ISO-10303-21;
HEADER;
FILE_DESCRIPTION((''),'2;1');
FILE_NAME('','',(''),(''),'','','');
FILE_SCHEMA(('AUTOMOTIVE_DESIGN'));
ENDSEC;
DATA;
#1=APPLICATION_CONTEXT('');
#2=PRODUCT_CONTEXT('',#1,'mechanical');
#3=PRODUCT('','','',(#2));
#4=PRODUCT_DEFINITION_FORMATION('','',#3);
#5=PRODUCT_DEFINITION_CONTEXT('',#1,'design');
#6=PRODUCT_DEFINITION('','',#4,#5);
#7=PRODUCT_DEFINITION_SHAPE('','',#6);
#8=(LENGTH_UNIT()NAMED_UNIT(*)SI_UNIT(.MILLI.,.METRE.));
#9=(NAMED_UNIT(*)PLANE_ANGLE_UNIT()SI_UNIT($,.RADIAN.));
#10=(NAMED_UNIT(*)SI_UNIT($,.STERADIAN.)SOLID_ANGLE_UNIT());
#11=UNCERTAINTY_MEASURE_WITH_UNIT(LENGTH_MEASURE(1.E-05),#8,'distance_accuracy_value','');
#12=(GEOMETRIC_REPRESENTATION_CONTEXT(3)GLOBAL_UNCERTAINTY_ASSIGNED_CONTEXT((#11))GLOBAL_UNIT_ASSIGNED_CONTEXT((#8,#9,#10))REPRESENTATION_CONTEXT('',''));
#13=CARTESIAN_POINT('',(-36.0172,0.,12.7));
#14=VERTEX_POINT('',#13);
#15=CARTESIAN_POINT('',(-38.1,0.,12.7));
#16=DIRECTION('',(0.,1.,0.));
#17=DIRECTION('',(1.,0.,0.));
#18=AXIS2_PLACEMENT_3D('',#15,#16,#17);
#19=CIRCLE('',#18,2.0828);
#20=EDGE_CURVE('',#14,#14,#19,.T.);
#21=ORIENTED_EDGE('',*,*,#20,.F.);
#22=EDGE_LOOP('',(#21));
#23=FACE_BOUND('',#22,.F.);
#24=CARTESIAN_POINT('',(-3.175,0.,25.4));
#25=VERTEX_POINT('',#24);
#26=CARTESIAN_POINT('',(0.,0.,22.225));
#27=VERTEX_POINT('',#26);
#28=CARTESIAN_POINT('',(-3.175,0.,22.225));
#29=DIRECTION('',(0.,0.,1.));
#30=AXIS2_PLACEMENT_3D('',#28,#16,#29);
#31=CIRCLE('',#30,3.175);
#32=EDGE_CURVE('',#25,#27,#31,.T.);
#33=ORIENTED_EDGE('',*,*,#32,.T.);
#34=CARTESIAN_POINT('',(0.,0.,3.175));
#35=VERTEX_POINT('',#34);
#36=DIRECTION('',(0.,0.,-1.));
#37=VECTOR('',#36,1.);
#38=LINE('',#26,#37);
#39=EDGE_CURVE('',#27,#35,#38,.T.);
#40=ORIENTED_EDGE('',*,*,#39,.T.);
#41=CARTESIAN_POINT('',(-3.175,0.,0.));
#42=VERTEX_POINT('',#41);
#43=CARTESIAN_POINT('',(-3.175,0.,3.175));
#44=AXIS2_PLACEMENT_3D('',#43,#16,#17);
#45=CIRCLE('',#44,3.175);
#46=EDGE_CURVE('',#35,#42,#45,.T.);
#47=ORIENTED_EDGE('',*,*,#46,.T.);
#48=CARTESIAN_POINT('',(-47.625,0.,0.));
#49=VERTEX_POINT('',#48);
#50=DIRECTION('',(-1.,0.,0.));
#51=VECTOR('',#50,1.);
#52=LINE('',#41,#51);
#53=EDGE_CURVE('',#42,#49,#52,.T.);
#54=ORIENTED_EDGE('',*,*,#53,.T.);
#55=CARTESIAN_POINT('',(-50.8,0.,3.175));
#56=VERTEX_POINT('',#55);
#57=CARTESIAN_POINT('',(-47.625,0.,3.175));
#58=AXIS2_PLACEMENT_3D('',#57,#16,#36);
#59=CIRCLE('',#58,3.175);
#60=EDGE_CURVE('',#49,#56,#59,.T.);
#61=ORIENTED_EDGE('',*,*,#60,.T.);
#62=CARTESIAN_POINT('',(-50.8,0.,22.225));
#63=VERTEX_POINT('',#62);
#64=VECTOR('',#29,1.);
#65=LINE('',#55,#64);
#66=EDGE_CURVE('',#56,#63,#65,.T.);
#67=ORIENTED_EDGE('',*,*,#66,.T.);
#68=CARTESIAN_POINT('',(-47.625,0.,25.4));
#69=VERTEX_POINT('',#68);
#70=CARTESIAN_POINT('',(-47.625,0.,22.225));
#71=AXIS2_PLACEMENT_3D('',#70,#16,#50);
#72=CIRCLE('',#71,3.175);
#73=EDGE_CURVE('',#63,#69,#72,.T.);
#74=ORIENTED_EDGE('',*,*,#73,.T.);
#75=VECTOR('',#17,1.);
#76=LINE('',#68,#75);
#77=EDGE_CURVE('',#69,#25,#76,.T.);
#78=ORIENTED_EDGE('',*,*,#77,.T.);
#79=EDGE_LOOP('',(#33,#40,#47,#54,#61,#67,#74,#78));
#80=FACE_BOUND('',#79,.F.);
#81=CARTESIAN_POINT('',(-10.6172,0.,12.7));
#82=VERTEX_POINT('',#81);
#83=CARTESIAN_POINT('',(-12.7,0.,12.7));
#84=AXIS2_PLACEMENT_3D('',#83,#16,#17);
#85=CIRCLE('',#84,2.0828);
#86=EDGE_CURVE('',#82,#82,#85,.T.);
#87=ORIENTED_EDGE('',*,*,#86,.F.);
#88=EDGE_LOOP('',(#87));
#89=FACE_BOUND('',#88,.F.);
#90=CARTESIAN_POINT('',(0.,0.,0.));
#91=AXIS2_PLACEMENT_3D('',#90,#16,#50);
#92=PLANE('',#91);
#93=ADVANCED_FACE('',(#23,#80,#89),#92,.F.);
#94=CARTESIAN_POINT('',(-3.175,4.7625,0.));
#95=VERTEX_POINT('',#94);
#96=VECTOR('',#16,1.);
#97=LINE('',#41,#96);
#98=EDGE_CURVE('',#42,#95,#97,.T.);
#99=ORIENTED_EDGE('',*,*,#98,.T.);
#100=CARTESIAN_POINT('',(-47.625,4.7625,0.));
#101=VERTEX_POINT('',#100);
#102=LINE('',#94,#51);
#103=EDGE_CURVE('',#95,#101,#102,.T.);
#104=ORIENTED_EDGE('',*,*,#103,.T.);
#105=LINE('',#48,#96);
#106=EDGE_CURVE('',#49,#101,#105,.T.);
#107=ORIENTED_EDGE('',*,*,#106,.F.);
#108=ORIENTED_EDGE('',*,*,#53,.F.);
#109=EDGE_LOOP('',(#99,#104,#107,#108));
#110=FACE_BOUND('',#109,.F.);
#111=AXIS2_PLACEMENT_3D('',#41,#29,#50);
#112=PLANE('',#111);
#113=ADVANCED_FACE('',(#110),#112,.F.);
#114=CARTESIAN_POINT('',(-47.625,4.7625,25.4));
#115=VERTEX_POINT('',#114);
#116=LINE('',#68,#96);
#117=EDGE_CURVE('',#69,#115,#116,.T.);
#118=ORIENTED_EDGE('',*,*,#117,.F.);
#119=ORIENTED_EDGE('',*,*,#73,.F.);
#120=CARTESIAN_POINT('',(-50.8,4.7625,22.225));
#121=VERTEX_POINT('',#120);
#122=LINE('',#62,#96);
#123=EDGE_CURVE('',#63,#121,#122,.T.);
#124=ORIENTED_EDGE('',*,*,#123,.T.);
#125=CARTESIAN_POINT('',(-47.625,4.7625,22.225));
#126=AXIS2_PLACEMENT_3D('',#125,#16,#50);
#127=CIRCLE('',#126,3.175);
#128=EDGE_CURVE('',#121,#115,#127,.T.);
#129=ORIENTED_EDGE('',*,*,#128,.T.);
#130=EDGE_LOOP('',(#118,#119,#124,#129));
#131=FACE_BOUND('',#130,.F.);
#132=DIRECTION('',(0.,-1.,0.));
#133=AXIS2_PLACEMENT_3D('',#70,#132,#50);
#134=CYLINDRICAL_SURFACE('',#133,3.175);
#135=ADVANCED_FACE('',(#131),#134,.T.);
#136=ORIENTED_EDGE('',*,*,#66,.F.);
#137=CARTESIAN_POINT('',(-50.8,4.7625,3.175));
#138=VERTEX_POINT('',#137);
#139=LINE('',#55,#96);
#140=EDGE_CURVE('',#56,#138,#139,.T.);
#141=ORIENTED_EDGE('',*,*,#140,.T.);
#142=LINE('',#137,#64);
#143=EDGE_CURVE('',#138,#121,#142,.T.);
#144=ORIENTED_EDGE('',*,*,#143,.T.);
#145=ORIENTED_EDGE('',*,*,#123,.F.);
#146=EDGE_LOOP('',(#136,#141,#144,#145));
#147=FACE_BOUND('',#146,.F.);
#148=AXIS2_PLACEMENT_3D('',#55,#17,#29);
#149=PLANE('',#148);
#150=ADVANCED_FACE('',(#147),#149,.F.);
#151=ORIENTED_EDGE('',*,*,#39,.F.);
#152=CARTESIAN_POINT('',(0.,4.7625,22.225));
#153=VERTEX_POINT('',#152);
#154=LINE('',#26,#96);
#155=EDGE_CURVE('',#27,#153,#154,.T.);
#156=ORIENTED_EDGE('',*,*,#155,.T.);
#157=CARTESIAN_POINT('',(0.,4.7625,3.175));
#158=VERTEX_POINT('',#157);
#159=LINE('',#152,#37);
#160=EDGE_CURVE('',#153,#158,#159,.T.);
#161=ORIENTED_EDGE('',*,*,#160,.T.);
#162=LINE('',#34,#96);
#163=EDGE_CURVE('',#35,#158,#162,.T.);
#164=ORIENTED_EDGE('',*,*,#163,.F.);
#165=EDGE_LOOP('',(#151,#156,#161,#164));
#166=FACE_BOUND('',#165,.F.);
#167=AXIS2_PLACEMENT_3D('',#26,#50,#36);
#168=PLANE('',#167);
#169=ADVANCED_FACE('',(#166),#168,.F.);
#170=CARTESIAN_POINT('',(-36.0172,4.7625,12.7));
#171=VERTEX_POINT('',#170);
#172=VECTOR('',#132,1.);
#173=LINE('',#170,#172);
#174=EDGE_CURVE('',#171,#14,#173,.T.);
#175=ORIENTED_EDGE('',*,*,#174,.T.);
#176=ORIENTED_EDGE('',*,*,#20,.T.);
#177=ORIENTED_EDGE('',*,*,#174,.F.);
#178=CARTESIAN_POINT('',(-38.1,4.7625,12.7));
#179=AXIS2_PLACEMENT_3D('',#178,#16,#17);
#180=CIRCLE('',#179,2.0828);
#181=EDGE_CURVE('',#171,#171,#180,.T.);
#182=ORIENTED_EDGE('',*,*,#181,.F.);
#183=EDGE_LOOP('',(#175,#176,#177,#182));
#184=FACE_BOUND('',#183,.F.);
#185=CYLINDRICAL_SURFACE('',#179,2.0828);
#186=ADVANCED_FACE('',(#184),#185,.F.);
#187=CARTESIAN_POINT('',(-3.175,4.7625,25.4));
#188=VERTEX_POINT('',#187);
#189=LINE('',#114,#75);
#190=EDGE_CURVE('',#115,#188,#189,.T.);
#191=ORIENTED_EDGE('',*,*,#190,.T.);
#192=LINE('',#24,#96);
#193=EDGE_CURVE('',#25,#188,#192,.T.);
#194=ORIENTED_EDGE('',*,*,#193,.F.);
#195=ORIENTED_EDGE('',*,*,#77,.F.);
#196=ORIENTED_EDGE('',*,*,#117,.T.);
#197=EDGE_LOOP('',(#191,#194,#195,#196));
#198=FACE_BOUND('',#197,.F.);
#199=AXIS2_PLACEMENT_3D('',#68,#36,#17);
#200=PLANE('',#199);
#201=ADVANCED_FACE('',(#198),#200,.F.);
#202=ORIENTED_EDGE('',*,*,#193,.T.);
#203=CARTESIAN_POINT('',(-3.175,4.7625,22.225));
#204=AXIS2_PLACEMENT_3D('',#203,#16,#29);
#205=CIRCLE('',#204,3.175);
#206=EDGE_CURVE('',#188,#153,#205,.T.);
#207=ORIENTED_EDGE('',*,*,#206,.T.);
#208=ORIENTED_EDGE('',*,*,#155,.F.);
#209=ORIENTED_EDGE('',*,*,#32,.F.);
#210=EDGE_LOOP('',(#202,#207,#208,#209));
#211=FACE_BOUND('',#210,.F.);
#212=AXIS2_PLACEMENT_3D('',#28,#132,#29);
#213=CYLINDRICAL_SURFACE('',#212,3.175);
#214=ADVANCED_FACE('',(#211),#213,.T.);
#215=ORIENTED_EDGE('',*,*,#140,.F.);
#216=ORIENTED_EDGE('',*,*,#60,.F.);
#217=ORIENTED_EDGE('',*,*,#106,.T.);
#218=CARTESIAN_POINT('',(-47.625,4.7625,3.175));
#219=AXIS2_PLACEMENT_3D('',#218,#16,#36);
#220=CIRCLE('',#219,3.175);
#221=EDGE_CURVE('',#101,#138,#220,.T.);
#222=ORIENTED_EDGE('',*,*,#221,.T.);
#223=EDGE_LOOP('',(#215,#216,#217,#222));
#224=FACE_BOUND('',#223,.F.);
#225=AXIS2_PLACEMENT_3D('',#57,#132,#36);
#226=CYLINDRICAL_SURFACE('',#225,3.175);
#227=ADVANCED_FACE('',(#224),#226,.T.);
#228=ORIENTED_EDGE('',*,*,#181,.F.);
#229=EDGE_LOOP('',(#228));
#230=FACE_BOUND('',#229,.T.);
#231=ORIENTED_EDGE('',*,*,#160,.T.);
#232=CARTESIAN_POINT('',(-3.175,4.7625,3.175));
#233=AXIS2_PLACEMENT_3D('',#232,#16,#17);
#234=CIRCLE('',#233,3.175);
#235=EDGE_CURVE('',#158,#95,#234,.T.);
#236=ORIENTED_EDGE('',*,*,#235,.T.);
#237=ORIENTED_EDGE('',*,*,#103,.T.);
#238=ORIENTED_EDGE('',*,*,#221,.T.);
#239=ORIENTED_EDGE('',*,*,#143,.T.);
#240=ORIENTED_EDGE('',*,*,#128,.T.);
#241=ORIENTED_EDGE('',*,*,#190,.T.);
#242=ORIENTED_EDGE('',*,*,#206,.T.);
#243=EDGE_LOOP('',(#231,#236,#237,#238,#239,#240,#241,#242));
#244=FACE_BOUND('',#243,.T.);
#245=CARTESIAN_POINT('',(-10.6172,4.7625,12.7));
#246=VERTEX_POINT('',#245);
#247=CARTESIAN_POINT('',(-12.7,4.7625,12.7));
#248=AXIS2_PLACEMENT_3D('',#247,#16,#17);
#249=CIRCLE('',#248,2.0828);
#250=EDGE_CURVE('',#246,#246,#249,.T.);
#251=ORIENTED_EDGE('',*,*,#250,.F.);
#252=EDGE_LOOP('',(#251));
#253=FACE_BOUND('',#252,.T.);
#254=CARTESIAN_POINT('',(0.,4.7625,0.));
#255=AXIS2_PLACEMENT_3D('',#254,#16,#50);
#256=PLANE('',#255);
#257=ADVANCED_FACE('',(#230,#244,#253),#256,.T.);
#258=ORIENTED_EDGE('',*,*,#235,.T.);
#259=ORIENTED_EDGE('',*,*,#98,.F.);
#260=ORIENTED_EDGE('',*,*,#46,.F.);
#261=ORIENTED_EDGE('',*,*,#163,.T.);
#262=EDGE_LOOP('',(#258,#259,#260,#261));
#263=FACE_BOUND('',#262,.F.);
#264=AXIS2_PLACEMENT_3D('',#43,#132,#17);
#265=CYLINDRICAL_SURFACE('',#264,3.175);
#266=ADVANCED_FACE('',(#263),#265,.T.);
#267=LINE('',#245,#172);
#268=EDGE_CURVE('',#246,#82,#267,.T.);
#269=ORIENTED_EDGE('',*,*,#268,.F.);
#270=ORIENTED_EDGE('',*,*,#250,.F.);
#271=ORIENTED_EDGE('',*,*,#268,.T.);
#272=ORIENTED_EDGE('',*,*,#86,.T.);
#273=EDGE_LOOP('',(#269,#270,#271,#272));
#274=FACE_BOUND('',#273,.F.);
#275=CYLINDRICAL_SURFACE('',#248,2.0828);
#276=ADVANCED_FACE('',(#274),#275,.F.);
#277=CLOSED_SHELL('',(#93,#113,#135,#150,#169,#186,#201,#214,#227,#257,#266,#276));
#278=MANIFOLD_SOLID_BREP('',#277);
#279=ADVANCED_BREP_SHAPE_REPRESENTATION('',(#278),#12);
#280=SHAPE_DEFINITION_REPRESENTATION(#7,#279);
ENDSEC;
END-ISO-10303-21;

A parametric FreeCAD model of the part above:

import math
import FreeCAD as App
import Part
import Sketcher
from FreeCAD import Vector
Q = App.Units.Quantity

doc = App.newDocument("Part")
params = doc.addObject("Spreadsheet::Sheet", "Params")
for row, (alias, value) in enumerate([
    ("sketch1_radius", "0.125 in"),
    ("pad1_length", "0.1875 in"),
    ("sketch2_diameter", "0.164 in"),
    ("pocket1_length", "0.1875 in"),
], start=1):
    params.set(f"A{row}", alias)
    params.set(f"B{row}", "=" + value)
    params.setAlias(f"B{row}", alias)

body = doc.addObject("PartDesign::Body", "Body")

# Sketch on XZ plane
sketch1 = body.newObject("Sketcher::SketchObject", "Sketch")
sketch1.AttachmentSupport = (doc.getObject("XZ_Plane"), [""])
sketch1.MapMode = "FlatFace"
sketch1.addGeometry([
    Part.ArcOfCircle(Part.Circle(Vector(-3.2, 3.2, 0), Vector(0, 0, 1), 3.2), math.radians(-90), math.radians(0)),  # 0
    Part.LineSegment(Vector(-3.2, 0, 0), Vector(-47.6, 0, 0)),  # 1
    Part.ArcOfCircle(Part.Circle(Vector(-47.6, 3.2, 0), Vector(0, 0, 1), 3.2), math.radians(180), math.radians(270)),  # 2
    Part.LineSegment(Vector(-50.8, 3.2, 0), Vector(-50.8, 22.2, 0)),  # 3
    Part.ArcOfCircle(Part.Circle(Vector(-47.6, 22.2, 0), Vector(0, 0, 1), 3.2), math.radians(90), math.radians(180)),  # 4
    Part.LineSegment(Vector(-47.6, 25.4, 0), Vector(-3.2, 25.4, 0)),  # 5
    Part.ArcOfCircle(Part.Circle(Vector(-3.2, 22.2, 0), Vector(0, 0, 1), 3.2), math.radians(0), math.radians(90)),  # 6
    Part.LineSegment(Vector(0, 22.2, 0), Vector(0, 3.2, 0)),  # 7
], False)
sketch1.addConstraint([
    Sketcher.Constraint("Tangent", 0, 1, 1, 1),
    Sketcher.Constraint("Tangent", 1, 2, 2, 2),
    Sketcher.Constraint("Tangent", 2, 1, 3, 1),
    Sketcher.Constraint("Tangent", 3, 2, 4, 2),
    Sketcher.Constraint("Tangent", 4, 1, 5, 1),
    Sketcher.Constraint("Tangent", 5, 2, 6, 2),
    Sketcher.Constraint("Tangent", 6, 1, 7, 1),
    Sketcher.Constraint("Tangent", 7, 2, 0, 2),
    Sketcher.Constraint("Horizontal", 1),
    Sketcher.Constraint("Vertical", 3),
    Sketcher.Constraint("Horizontal", 5),
    Sketcher.Constraint("Vertical", 7),
    Sketcher.Constraint("Equal", 0, 2),
    Sketcher.Constraint("Equal", 2, 4),
    Sketcher.Constraint("Equal", 4, 6),
    Sketcher.Constraint("PointOnObject", 0, 1, -1),
    Sketcher.Constraint("PointOnObject", 6, 1, -2),
    Sketcher.Constraint("DistanceX", 2, 1, -1, 1, Q("2 in")),
    Sketcher.Constraint("DistanceY", -1, 1, 4, 1, Q("1 in")),
    Sketcher.Constraint("Radius", 0, Q("0.125 in")),
])
sketch1.setExpression("Constraints[19]", "Params.sketch1_radius")
pad1 = body.newObject("PartDesign::Pad", "Pad")
pad1.Profile = sketch1
pad1.setExpression("Length", "Params.pad1_length")
pad1.Reversed = True

# Sketch on XZ plane
sketch2 = body.newObject("Sketcher::SketchObject", "Sketch001")
sketch2.AttachmentSupport = (doc.getObject("XZ_Plane"), [""])
sketch2.MapMode = "FlatFace"
sketch2.AttachmentOffset = App.Placement(Vector(0, 0, -0.1875 * 25.4), App.Rotation())
sketch2.addGeometry([
    Part.Circle(Vector(-38.1, 12.7, 0), Vector(0, 0, 1), 2.1),
    Part.Circle(Vector(-12.7, 12.7, 0), Vector(0, 0, 1), 2.1),
], False)
sketch2.addConstraint([
    Sketcher.Constraint("Equal", 0, 1),
    Sketcher.Constraint("Horizontal", 0, 3, 1, 3),
    Sketcher.Constraint("Diameter", 0, Q("0.164 in")),
    Sketcher.Constraint("DistanceX", 0, 3, 1, 3, Q("1 in")),
    Sketcher.Constraint("DistanceY", -1, 1, 0, 3, Q("0.5 in")),
    Sketcher.Constraint("DistanceX", 1, 3, -1, 1, Q("0.5 in")),
])
sketch2.setExpression("Constraints[2]", "Params.sketch2_diameter")
pocket1 = body.newObject("PartDesign::Pocket", "Pocket")
pocket1.Profile = sketch2
pocket1.setExpression("Length", "Params.pocket1_length")
pocket1.Reversed = True

doc.recompute()
